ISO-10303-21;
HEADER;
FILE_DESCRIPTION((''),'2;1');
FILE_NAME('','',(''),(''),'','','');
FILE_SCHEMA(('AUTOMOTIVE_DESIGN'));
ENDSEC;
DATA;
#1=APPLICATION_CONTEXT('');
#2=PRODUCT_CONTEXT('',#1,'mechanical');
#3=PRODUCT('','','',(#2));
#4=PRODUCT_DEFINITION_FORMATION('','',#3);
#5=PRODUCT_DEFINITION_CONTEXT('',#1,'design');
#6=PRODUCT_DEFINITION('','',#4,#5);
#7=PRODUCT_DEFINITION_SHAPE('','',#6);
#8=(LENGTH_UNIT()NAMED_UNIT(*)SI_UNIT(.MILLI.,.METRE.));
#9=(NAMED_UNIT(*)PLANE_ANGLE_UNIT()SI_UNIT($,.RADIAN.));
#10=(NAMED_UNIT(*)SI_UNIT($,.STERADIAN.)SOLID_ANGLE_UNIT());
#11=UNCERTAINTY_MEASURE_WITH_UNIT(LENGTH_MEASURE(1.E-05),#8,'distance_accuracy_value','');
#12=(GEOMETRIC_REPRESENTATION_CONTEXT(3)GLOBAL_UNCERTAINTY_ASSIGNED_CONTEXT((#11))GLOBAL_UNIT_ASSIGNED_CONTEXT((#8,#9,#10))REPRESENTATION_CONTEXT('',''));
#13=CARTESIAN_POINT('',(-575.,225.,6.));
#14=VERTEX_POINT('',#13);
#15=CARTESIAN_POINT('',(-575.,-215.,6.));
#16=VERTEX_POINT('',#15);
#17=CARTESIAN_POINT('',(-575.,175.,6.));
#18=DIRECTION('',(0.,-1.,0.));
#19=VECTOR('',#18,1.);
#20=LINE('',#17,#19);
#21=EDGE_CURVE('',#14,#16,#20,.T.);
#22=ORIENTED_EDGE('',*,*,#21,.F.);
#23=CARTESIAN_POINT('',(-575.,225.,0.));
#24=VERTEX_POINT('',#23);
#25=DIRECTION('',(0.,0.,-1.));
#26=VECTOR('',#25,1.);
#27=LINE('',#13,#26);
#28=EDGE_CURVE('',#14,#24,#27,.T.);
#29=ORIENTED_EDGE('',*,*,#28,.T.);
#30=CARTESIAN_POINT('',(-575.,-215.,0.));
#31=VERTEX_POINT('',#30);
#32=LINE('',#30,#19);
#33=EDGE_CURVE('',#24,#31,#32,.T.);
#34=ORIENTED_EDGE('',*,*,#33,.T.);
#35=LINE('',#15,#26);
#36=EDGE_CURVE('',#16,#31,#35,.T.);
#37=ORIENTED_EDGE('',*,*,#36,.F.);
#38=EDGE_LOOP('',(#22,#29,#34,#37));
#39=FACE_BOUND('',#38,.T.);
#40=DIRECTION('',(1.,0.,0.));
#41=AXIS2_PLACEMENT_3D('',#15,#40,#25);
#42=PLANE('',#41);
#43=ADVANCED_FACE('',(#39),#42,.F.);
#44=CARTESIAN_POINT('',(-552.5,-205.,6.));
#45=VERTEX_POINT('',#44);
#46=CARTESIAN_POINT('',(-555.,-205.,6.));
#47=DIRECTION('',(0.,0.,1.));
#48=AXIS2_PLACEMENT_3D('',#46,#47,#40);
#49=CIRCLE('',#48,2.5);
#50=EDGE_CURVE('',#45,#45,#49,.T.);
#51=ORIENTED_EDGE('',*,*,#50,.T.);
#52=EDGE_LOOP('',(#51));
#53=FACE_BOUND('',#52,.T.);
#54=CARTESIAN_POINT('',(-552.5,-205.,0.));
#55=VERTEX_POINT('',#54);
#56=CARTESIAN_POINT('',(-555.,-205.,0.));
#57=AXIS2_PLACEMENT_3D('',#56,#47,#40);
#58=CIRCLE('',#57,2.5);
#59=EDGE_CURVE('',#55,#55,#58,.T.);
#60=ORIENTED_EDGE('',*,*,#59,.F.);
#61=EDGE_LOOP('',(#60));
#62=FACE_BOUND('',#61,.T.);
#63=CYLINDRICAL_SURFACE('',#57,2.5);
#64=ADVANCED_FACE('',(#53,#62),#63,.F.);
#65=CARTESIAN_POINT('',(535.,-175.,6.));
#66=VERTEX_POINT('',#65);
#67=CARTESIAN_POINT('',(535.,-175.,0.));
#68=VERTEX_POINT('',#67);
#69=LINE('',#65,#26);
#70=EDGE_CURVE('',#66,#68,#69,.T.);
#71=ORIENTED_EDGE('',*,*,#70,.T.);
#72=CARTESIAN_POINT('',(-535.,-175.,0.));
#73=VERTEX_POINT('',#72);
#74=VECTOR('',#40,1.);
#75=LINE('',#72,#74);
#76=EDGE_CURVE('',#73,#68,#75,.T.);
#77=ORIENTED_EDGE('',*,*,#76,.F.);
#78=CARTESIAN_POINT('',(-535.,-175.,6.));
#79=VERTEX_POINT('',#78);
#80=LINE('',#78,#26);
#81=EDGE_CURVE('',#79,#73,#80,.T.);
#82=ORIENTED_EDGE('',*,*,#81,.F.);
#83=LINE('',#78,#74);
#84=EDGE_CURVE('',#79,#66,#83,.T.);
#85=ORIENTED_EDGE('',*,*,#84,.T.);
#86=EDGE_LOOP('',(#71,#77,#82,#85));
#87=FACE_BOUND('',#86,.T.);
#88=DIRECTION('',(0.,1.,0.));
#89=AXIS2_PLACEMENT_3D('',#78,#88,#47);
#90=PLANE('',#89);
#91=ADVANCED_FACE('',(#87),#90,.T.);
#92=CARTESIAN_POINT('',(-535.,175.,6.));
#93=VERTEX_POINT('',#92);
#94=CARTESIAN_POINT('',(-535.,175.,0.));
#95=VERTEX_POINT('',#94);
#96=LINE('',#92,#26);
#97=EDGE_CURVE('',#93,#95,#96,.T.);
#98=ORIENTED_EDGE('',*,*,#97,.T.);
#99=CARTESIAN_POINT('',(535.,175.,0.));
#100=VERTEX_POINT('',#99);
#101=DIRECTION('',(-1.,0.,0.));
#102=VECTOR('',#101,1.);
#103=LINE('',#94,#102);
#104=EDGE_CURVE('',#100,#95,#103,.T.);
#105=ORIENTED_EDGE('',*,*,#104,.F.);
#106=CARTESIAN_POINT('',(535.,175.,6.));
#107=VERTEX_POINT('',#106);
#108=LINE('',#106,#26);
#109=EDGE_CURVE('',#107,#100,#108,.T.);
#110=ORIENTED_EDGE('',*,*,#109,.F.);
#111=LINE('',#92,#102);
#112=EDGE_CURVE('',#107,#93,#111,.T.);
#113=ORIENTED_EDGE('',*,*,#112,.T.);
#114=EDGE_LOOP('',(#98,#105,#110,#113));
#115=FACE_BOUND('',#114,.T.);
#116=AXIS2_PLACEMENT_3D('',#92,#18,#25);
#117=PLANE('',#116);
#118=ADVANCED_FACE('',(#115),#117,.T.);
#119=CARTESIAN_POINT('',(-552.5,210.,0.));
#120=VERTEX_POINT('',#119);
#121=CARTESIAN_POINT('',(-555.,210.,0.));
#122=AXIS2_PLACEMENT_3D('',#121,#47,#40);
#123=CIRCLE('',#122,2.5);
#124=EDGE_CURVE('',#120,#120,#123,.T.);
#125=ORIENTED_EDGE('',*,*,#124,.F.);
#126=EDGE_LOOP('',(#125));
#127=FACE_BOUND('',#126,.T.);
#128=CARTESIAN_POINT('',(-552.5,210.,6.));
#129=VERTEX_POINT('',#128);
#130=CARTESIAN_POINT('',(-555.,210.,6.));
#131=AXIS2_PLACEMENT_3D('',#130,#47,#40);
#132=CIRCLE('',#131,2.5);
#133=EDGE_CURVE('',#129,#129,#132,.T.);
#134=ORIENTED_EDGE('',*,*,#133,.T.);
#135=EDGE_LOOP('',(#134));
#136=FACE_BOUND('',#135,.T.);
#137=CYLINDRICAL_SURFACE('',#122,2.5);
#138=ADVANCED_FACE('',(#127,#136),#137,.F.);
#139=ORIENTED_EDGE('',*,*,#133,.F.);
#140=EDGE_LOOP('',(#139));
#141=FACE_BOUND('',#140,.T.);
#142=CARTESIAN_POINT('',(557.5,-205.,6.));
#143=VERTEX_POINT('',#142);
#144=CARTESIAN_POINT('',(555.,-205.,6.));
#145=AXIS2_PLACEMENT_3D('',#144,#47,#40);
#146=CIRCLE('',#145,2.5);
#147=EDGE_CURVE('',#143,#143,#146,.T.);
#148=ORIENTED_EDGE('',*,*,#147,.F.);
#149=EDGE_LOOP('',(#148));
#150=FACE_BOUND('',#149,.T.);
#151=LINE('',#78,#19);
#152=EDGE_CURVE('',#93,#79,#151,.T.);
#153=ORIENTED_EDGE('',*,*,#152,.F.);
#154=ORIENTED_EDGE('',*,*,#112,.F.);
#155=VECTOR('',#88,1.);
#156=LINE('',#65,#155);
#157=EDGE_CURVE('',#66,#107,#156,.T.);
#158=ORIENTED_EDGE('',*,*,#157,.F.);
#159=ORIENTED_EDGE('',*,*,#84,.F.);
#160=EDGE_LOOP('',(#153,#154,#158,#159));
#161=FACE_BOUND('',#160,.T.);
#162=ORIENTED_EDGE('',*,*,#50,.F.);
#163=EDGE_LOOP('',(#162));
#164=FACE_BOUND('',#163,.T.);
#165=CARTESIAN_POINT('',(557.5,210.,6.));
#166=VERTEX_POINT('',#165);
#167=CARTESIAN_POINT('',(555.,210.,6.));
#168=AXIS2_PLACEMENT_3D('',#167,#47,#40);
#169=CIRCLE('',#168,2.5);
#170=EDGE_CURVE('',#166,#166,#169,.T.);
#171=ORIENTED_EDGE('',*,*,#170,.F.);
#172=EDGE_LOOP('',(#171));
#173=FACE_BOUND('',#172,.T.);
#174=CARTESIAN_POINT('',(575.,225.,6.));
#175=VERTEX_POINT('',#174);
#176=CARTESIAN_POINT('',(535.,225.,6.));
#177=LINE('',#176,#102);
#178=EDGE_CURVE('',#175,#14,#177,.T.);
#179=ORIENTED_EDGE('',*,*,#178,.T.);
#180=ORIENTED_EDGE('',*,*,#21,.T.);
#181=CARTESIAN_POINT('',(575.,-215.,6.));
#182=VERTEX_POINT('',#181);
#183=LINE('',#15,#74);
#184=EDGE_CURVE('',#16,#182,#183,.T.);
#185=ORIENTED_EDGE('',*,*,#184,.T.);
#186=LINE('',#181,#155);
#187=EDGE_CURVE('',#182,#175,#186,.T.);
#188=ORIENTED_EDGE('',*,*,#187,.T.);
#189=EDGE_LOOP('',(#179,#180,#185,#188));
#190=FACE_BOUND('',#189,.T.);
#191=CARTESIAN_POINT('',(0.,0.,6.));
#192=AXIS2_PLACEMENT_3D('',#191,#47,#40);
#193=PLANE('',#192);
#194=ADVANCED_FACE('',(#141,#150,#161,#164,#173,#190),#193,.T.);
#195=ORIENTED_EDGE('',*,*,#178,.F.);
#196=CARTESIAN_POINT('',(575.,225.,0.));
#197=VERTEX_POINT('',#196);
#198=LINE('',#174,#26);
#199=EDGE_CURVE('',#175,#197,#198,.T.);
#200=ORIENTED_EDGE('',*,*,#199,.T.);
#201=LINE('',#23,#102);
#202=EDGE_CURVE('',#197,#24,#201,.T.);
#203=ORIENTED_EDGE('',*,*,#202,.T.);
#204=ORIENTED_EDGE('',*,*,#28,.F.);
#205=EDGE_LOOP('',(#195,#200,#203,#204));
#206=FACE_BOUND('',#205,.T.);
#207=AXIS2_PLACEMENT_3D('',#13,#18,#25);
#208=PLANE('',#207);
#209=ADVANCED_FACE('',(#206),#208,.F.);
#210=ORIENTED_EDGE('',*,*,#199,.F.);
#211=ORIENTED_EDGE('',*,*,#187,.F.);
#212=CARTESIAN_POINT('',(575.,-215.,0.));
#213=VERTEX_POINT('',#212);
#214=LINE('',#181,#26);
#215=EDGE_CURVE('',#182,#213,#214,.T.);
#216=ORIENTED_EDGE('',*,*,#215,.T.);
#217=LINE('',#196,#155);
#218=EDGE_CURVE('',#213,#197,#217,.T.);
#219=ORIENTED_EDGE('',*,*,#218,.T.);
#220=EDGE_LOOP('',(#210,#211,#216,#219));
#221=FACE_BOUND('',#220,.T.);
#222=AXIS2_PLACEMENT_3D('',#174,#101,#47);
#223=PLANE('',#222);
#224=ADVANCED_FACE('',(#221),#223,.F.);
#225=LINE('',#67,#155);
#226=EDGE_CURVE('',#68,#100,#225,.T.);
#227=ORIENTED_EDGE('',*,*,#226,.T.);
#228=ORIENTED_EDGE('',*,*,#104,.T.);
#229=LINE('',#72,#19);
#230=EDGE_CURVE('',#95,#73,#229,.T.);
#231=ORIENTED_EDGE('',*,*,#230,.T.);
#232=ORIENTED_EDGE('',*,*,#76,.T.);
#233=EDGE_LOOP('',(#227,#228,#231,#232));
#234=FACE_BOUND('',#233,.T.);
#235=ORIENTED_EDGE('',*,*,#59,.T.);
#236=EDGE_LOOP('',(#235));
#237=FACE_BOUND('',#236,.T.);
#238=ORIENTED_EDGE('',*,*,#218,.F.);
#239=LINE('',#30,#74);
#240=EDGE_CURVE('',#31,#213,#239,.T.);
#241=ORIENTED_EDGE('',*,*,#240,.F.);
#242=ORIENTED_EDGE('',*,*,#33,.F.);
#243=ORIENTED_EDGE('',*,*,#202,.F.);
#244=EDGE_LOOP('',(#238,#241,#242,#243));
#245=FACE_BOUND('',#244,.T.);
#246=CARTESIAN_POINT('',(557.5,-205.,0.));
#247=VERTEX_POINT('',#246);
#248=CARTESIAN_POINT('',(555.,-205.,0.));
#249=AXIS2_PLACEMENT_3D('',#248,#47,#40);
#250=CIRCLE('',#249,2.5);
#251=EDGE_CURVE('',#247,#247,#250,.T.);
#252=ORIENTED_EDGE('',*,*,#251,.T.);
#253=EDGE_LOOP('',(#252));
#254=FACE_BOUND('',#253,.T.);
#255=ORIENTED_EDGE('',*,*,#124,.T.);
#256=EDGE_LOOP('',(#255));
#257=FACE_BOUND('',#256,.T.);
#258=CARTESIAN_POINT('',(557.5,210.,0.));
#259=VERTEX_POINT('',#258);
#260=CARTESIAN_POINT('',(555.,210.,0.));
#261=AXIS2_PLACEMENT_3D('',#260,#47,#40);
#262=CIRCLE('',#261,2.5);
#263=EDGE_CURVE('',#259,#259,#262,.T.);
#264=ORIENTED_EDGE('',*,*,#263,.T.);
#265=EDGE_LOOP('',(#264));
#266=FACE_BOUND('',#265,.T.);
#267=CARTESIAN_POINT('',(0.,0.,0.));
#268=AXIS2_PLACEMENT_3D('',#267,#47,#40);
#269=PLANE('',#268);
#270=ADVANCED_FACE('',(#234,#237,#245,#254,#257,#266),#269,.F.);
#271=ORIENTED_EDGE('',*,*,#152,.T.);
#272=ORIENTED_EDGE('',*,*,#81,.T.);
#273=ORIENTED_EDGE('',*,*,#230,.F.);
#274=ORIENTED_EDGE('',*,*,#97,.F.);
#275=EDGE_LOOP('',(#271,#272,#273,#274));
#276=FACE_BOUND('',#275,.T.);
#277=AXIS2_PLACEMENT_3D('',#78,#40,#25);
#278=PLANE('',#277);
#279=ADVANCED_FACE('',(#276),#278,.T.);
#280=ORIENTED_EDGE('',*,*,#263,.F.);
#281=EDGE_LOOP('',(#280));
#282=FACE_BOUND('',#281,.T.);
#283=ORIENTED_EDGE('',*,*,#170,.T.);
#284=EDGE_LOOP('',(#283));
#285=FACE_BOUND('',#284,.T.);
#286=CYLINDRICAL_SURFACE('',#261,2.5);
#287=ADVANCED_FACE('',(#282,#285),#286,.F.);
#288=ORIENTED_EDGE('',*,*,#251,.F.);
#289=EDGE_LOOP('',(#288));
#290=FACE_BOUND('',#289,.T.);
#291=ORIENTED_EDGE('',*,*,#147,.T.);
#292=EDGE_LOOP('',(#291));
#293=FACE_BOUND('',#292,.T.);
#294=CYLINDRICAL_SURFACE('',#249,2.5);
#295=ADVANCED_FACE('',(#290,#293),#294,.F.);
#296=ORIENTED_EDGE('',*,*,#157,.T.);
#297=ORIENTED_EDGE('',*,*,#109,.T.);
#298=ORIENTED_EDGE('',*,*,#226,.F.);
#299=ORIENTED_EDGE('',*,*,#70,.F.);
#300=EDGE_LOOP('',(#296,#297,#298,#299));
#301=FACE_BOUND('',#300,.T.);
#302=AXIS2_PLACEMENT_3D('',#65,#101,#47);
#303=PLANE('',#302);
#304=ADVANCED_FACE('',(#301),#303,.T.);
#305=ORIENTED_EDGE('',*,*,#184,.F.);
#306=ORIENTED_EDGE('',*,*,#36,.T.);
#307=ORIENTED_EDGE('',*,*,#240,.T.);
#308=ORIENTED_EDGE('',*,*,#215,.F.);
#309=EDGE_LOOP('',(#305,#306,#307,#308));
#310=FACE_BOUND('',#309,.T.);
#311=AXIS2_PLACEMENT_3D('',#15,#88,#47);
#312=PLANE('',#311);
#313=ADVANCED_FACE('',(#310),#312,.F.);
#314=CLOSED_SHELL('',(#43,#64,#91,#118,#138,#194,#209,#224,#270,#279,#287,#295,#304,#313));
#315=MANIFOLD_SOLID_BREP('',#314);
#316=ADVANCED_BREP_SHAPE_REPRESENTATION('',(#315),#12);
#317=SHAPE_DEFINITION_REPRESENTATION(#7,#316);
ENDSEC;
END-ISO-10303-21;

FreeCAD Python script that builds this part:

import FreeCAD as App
import Part
import Sketcher

V = App.Vector
Q = App.Units.Quantity


def add_polygon(sketch, points):
    """Adds a closed chain of lines whose ends are joined by coincident constraints."""
    first, n = sketch.GeometryCount, len(points)
    for a, b in zip(points, points[1:] + points[:1]):
        sketch.addGeometry(Part.LineSegment(App.Vector(*a, 0), App.Vector(*b, 0)), False)
    for i in range(n):
        sketch.addConstraint(Sketcher.Constraint("Coincident", first + i, 2, first + (i + 1) % n, 1))

doc = App.newDocument("Part")
body = doc.addObject("PartDesign::Body", "Body")

sketch1 = doc.addObject("Sketcher::SketchObject", "Sketch")
body.addObject(sketch1)
sketch1.AttachmentSupport = (doc.XY_Plane, [""])
sketch1.MapMode = "FlatFace"
add_polygon(sketch1, [(575, -215), (575, 225), (-575, 225), (-575, -215)])
add_polygon(sketch1, [(535, -175), (-535, -175), (-535, 175), (535, 175)])
sketch1.addConstraint([
    Sketcher.Constraint("Vertical", 0),
    Sketcher.Constraint("Horizontal", 1),
    Sketcher.Constraint("Vertical", 2),
    Sketcher.Constraint("Horizontal", 3),
    Sketcher.Constraint("Horizontal", 4),
    Sketcher.Constraint("Vertical", 5),
    Sketcher.Constraint("Horizontal", 6),
    Sketcher.Constraint("Vertical", 7),
    Sketcher.Constraint("Symmetric", 4, 2, 6, 2, -1, 1),
    Sketcher.Constraint("DistanceX", 1, 2, 1, 1, Q("1150 mm")),
    Sketcher.Constraint("DistanceX", 4, 2, 4, 1, Q("1070 mm")),
    Sketcher.Constraint("DistanceY", 0, 1, 0, 2, Q("440 mm")),
    Sketcher.Constraint("DistanceY", 5, 1, 5, 2, Q("350 mm")),
    Sketcher.Constraint("DistanceX", -1, 1, 0, 2, Q("575 mm")),
    Sketcher.Constraint("DistanceY", -1, 1, 0, 2, Q("225 mm")),
])
pad1 = doc.addObject("PartDesign::Pad", "Pad")
body.addObject(pad1)
pad1.Profile = sketch1
pad1.Length = 6

sketch2 = doc.addObject("Sketcher::SketchObject", "Sketch001")
body.addObject(sketch2)
sketch2.AttachmentSupport = (doc.XY_Plane, [""])
sketch2.MapMode = "FlatFace"
sketch2.AttachmentOffset = App.Placement(V(0, 0, 6), App.Rotation())
sketch2.addGeometry([
    Part.Circle(V(-555, 210, 0), V(0, 0, 1), 2.5),
    Part.Circle(V(-555, -205, 0), V(0, 0, 1), 2.5),
    Part.Circle(V(555, -205, 0), V(0, 0, 1), 2.5),
    Part.Circle(V(555, 210, 0), V(0, 0, 1), 2.5),
], False)
sketch2.addConstraint([
    Sketcher.Constraint("Equal", 0, 1),
    Sketcher.Constraint("Equal", 1, 2),
    Sketcher.Constraint("Equal", 2, 3),
    Sketcher.Constraint("Symmetric", 1, 3, 2, 3, -2),
    Sketcher.Constraint("Symmetric", 0, 3, 3, 3, -2),
    Sketcher.Constraint("Vertical", 0, 3, 1, 3),
    Sketcher.Constraint("Diameter", 0, Q("5 mm")),
    Sketcher.Constraint("DistanceX", 0, 3, -1, 1, Q("555 mm")),
    Sketcher.Constraint("DistanceY", -1, 1, 0, 3, Q("210 mm")),
    Sketcher.Constraint("DistanceY", 1, 3, -1, 1, Q("205 mm")),
])
pocket1 = doc.addObject("PartDesign::Pocket", "Pocket")
body.addObject(pocket1)
pocket1.Profile = sketch2
pocket1.Type = "ThroughAll"

doc.recompute()
